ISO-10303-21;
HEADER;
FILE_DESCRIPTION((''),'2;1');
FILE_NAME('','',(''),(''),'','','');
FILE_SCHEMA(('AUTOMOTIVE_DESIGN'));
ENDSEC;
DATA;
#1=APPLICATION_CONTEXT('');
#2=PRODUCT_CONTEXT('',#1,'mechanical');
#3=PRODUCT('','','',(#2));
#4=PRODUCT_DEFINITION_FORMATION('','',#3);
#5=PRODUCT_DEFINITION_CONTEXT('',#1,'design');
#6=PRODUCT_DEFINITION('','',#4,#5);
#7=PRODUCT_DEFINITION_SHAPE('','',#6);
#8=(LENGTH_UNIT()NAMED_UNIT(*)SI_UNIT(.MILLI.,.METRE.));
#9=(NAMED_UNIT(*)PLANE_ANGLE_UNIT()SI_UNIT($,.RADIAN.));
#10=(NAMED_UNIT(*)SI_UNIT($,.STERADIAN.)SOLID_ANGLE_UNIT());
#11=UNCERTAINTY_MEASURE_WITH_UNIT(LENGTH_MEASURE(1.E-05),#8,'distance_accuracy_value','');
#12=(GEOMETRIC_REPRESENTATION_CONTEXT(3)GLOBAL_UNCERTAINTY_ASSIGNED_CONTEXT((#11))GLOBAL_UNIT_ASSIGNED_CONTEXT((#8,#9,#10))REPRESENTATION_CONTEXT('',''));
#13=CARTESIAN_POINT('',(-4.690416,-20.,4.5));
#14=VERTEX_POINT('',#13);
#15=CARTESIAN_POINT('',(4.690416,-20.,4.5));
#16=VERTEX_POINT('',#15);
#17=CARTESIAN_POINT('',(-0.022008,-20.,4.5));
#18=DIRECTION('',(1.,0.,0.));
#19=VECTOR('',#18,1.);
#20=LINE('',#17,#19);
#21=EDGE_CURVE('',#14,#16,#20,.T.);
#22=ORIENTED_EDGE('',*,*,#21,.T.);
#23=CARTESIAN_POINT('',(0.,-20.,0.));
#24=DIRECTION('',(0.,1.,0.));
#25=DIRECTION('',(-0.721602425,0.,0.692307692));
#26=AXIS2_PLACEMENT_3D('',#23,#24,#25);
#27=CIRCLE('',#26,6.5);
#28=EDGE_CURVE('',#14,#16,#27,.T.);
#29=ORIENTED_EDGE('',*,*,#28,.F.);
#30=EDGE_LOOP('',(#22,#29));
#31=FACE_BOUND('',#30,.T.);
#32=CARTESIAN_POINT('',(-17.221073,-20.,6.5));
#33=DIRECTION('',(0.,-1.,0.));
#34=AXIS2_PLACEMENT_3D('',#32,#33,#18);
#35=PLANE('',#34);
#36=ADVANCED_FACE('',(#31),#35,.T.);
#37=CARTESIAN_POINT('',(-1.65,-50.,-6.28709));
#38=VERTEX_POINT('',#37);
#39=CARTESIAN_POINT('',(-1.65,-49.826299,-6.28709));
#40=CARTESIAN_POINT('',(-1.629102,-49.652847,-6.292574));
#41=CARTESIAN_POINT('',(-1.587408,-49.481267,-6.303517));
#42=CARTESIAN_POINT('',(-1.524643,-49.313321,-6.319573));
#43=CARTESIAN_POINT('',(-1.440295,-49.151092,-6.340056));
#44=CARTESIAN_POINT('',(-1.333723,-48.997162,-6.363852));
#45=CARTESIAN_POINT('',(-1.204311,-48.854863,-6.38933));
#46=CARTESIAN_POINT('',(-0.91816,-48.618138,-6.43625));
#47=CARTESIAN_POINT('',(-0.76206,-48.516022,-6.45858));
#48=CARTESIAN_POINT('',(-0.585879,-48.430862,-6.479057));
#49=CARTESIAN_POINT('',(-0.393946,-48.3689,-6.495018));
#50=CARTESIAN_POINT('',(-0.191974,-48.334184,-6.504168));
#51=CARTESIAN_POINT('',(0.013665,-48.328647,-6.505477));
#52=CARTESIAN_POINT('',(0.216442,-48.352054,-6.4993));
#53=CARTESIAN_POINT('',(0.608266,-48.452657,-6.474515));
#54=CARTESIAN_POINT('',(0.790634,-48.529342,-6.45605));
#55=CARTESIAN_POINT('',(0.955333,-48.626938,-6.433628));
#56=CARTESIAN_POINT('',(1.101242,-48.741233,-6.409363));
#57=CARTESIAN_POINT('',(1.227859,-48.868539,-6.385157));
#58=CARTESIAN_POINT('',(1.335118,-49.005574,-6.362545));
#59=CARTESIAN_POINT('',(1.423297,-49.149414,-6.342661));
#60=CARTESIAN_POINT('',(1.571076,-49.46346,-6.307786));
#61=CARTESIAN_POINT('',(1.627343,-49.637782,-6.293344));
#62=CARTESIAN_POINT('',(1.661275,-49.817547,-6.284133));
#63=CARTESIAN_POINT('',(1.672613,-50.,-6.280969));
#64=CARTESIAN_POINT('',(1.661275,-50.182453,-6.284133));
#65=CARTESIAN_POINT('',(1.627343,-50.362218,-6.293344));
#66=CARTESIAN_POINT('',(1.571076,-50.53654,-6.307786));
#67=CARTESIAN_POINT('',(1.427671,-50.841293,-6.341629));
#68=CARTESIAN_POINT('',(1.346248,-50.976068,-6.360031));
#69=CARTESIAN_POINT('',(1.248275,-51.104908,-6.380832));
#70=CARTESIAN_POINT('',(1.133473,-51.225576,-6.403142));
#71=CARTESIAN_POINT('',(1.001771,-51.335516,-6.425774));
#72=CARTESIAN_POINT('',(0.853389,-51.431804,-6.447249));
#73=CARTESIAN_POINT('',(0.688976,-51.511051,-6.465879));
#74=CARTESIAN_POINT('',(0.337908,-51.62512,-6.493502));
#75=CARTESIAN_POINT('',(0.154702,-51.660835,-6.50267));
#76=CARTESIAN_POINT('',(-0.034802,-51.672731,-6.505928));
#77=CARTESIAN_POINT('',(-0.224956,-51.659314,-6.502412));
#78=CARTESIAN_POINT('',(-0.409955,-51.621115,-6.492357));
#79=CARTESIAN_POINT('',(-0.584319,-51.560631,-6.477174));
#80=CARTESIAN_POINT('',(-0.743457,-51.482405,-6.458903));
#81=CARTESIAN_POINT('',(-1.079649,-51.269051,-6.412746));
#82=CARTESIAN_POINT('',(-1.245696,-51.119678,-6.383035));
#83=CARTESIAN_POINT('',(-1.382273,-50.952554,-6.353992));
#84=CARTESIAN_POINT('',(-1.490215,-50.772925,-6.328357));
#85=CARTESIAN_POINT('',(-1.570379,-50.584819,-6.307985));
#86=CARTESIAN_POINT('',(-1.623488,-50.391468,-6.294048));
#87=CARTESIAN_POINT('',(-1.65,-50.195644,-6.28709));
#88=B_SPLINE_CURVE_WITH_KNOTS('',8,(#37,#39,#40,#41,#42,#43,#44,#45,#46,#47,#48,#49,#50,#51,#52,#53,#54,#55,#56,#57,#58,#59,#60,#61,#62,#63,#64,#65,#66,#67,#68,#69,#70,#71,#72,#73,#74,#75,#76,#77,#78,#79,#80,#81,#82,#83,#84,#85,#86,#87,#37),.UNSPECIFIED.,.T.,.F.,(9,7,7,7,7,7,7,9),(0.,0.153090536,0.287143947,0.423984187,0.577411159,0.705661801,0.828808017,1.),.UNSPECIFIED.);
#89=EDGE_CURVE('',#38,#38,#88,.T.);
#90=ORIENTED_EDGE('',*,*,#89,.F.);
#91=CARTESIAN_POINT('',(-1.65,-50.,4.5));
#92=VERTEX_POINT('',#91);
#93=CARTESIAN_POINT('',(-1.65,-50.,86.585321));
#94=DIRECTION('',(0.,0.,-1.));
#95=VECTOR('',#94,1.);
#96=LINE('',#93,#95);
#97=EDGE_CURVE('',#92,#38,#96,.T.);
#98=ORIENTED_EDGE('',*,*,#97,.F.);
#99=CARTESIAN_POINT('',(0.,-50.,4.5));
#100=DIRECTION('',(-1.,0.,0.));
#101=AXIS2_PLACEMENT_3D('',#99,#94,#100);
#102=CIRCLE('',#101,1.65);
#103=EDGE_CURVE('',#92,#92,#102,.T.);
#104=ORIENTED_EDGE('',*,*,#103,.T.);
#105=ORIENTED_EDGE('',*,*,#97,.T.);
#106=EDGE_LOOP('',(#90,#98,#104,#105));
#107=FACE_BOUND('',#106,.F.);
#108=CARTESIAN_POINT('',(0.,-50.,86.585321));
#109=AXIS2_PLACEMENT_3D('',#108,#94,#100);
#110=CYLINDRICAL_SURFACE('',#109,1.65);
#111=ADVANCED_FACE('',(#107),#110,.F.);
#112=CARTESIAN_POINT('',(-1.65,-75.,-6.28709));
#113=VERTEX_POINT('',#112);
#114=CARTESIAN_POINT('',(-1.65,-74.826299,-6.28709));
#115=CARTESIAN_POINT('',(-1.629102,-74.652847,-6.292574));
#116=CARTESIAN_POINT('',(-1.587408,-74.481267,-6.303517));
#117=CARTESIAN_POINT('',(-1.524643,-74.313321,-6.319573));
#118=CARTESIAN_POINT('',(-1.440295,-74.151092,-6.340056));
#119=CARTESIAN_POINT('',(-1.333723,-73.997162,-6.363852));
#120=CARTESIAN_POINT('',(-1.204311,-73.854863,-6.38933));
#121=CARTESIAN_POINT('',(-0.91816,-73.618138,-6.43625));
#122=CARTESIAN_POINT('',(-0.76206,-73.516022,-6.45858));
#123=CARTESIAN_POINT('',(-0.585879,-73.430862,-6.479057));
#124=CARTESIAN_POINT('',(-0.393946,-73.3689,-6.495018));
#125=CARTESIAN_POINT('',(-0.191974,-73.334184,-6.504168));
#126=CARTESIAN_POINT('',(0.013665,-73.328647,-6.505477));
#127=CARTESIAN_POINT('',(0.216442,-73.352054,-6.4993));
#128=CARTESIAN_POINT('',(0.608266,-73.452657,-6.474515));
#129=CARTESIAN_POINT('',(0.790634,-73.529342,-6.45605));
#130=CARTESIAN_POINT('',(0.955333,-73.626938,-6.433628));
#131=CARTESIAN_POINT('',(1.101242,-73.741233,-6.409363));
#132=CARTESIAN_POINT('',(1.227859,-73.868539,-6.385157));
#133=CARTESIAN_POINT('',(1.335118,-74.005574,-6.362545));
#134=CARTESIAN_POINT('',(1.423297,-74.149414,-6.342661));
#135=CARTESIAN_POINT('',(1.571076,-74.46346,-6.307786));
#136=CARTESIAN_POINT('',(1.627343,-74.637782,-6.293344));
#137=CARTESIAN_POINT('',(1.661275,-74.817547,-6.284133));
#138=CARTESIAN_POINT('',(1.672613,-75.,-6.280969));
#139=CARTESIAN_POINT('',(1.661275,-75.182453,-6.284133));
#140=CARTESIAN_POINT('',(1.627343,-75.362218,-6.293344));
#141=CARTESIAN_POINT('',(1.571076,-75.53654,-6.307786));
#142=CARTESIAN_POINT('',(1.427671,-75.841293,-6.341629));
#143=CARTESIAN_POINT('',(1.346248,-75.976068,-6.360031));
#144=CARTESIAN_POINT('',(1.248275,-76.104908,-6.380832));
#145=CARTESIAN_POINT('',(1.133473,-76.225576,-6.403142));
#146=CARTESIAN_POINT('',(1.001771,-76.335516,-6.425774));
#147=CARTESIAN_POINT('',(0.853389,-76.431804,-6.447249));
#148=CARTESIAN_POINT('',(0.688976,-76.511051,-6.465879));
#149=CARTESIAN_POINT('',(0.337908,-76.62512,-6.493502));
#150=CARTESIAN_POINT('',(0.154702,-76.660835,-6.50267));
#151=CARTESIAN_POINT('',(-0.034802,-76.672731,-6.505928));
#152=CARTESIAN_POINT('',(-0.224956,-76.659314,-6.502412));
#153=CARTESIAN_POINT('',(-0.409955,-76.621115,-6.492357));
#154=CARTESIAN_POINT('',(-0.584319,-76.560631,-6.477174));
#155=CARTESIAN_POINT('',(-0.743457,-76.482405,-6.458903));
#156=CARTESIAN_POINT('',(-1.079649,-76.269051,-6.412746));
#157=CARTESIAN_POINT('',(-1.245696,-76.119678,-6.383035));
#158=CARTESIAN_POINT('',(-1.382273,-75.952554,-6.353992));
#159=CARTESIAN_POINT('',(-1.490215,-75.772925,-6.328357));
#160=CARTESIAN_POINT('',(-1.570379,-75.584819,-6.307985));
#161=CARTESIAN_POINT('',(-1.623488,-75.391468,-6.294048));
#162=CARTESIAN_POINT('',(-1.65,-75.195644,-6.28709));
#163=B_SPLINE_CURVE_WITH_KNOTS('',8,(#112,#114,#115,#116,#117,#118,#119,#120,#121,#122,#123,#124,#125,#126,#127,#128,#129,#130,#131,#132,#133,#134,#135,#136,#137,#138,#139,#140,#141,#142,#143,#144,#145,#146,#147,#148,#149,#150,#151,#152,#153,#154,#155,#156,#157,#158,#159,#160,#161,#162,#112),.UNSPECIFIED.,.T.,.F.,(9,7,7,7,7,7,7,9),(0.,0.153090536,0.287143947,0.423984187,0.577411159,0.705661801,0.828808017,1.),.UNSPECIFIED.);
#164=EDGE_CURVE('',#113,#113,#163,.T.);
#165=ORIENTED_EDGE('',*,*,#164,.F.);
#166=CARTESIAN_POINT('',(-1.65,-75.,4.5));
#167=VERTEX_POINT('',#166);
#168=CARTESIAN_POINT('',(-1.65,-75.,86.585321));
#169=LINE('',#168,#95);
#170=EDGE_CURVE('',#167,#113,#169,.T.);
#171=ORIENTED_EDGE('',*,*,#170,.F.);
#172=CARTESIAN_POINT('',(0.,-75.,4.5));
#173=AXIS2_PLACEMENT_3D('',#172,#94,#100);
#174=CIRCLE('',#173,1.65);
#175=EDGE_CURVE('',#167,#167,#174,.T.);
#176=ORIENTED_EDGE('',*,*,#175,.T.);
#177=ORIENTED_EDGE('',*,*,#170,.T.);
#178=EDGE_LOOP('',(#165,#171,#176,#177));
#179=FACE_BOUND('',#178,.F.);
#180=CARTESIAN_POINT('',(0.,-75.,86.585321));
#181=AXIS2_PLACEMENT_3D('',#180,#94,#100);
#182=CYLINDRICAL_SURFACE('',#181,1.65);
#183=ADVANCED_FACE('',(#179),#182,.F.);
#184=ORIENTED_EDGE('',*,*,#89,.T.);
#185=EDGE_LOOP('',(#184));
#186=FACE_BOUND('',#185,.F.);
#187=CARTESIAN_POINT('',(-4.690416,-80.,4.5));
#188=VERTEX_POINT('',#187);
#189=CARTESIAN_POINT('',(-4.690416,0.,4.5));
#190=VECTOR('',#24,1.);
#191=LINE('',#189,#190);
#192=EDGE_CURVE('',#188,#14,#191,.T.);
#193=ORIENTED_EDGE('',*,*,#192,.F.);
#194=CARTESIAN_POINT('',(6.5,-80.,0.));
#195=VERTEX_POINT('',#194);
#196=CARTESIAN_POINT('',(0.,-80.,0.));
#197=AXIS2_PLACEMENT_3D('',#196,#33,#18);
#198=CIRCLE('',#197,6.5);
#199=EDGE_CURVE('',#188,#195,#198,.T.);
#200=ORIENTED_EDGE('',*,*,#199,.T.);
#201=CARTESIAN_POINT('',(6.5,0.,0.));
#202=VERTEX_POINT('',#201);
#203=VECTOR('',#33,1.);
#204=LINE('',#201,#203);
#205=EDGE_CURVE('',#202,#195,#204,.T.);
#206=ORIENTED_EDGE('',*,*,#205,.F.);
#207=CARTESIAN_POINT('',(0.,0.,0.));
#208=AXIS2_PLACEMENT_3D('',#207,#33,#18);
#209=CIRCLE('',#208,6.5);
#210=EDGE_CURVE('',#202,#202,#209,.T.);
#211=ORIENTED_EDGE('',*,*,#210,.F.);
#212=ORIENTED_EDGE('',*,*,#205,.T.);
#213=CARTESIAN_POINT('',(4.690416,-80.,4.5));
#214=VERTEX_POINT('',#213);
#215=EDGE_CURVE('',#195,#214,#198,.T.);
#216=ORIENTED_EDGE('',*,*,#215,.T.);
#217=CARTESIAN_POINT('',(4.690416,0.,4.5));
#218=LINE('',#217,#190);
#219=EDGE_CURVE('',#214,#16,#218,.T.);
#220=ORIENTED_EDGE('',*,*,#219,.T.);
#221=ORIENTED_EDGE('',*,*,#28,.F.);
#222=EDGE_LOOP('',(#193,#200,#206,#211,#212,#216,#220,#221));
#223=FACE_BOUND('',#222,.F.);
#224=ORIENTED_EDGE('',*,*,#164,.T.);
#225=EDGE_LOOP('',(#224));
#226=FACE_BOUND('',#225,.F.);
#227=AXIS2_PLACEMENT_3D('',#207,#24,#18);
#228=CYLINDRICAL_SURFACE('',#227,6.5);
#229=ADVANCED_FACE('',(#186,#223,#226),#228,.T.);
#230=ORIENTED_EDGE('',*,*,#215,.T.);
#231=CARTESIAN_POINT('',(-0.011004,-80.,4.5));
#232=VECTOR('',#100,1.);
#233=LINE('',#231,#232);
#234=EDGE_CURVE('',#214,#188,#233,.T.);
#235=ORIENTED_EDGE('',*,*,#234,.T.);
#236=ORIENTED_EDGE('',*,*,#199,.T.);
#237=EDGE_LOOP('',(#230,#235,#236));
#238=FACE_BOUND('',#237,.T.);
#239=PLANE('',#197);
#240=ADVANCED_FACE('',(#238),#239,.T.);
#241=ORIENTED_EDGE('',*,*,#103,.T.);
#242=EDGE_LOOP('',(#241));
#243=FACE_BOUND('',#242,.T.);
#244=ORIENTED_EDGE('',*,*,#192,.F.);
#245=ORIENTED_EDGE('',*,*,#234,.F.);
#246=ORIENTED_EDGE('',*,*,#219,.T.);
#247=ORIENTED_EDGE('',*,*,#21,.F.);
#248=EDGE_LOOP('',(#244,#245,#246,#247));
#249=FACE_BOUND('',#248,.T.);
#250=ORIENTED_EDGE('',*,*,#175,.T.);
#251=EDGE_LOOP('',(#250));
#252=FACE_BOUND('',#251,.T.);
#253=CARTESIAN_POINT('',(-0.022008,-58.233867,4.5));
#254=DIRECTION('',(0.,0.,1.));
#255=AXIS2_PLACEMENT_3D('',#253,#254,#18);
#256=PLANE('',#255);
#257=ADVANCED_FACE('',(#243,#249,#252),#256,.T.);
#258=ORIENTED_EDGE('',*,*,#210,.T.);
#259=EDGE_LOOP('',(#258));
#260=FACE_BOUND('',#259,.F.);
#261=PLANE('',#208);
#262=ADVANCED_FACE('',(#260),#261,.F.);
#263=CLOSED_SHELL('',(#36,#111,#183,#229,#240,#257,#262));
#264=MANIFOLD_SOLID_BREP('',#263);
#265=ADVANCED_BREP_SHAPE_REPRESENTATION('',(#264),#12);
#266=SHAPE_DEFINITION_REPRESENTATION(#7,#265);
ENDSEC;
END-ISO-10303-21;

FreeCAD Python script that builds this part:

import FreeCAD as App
import Part
import Sketcher

V = App.Vector
Q = App.Units.Quantity

doc = App.newDocument("Part")
body = doc.addObject("PartDesign::Body", "Body")

sketch1 = body.newObject("Sketcher::SketchObject", "Sketch")
sketch1.AttachmentSupport = (doc.getObject("XZ_Plane"), [""])
sketch1.MapMode = "FlatFace"
sketch1.addGeometry(Part.Circle(V(0, 0, 0), V(0, 0, 1), 6), False)
sketch1.addConstraint(Sketcher.Constraint("Coincident", 0, 3, -1, 1))
sketch1.addConstraint(Sketcher.Constraint("Diameter", 0, Q("13 mm")))
pad1 = body.newObject("PartDesign::Pad", "Pad")
pad1.Profile = sketch1
pad1.Length = 80

sketch2 = body.newObject("Sketcher::SketchObject", "Sketch001")
sketch2.AttachmentSupport = (doc.getObject("XY_Plane"), [""])
sketch2.MapMode = "FlatFace"
sketch2.AttachmentOffset = App.Placement(V(0, 0, 6.5), App.Rotation())
sketch2.addGeometry(Part.LineSegment(V(-17, -20, 0), V(-17, -96, 0)), False)
sketch2.addGeometry(Part.LineSegment(V(-17, -96, 0), V(17, -96, 0)), False)
sketch2.addGeometry(Part.LineSegment(V(17, -96, 0), V(17, -20, 0)), False)
sketch2.addGeometry(Part.LineSegment(V(17, -20, 0), V(-17, -20, 0)), False)
sketch2.addConstraint(Sketcher.Constraint("Coincident", 0, 2, 1, 1))
sketch2.addConstraint(Sketcher.Constraint("Coincident", 1, 2, 2, 1))
sketch2.addConstraint(Sketcher.Constraint("Coincident", 2, 2, 3, 1))
sketch2.addConstraint(Sketcher.Constraint("Coincident", 3, 2, 0, 1))
sketch2.addConstraint(Sketcher.Constraint("Vertical", 0))
sketch2.addConstraint(Sketcher.Constraint("Horizontal", 1))
sketch2.addConstraint(Sketcher.Constraint("Vertical", 2))
sketch2.addConstraint(Sketcher.Constraint("Horizontal", 3))
sketch2.addConstraint(Sketcher.Constraint("DistanceY", 2, 2, -1, 1, Q("20 mm")))
sketch2.addConstraint(Sketcher.Constraint("DistanceX", 1, 1, 1, 2, Q("34.398129 mm")))
sketch2.addConstraint(Sketcher.Constraint("DistanceY", 0, 2, 0, 1, Q("76.467733 mm")))
sketch2.addConstraint(Sketcher.Constraint("DistanceX", 0, 2, -1, 1, Q("17.221073 mm")))
pocket1 = body.newObject("PartDesign::Pocket", "Pocket")
pocket1.Profile = sketch2
pocket1.Length = 2

sketch3 = body.newObject("Sketcher::SketchObject", "Sketch002")
sketch3.AttachmentSupport = (doc.getObject("XY_Plane"), [""])
sketch3.MapMode = "FlatFace"
sketch3.AttachmentOffset = App.Placement(V(0, 0, 4.5), App.Rotation())
sketch3.addGeometry(Part.Circle(V(0, -50, 0), V(0, 0, 1), 1.6), False)
sketch3.addGeometry(Part.Circle(V(0, -75, 0), V(0, 0, 1), 1.6), False)
sketch3.addConstraint(Sketcher.Constraint("Equal", 0, 1))
sketch3.addConstraint(Sketcher.Constraint("PointOnObject", 0, 3, -2))
sketch3.addConstraint(Sketcher.Constraint("PointOnObject", 1, 3, -2))
sketch3.addConstraint(Sketcher.Constraint("Diameter", 0, Q("3.3 mm")))
sketch3.addConstraint(Sketcher.Constraint("DistanceY", 0, 3, -1, 1, Q("50 mm")))
sketch3.addConstraint(Sketcher.Constraint("DistanceY", 1, 3, -1, 1, Q("75 mm")))
doc.recompute()
hole = body.newObject("PartDesign::Hole", "Hole")
hole.Profile = sketch3
hole.ThreadType = "None"
hole.Diameter = 3.3
hole.DepthType = "ThroughAll"

doc.recompute()
